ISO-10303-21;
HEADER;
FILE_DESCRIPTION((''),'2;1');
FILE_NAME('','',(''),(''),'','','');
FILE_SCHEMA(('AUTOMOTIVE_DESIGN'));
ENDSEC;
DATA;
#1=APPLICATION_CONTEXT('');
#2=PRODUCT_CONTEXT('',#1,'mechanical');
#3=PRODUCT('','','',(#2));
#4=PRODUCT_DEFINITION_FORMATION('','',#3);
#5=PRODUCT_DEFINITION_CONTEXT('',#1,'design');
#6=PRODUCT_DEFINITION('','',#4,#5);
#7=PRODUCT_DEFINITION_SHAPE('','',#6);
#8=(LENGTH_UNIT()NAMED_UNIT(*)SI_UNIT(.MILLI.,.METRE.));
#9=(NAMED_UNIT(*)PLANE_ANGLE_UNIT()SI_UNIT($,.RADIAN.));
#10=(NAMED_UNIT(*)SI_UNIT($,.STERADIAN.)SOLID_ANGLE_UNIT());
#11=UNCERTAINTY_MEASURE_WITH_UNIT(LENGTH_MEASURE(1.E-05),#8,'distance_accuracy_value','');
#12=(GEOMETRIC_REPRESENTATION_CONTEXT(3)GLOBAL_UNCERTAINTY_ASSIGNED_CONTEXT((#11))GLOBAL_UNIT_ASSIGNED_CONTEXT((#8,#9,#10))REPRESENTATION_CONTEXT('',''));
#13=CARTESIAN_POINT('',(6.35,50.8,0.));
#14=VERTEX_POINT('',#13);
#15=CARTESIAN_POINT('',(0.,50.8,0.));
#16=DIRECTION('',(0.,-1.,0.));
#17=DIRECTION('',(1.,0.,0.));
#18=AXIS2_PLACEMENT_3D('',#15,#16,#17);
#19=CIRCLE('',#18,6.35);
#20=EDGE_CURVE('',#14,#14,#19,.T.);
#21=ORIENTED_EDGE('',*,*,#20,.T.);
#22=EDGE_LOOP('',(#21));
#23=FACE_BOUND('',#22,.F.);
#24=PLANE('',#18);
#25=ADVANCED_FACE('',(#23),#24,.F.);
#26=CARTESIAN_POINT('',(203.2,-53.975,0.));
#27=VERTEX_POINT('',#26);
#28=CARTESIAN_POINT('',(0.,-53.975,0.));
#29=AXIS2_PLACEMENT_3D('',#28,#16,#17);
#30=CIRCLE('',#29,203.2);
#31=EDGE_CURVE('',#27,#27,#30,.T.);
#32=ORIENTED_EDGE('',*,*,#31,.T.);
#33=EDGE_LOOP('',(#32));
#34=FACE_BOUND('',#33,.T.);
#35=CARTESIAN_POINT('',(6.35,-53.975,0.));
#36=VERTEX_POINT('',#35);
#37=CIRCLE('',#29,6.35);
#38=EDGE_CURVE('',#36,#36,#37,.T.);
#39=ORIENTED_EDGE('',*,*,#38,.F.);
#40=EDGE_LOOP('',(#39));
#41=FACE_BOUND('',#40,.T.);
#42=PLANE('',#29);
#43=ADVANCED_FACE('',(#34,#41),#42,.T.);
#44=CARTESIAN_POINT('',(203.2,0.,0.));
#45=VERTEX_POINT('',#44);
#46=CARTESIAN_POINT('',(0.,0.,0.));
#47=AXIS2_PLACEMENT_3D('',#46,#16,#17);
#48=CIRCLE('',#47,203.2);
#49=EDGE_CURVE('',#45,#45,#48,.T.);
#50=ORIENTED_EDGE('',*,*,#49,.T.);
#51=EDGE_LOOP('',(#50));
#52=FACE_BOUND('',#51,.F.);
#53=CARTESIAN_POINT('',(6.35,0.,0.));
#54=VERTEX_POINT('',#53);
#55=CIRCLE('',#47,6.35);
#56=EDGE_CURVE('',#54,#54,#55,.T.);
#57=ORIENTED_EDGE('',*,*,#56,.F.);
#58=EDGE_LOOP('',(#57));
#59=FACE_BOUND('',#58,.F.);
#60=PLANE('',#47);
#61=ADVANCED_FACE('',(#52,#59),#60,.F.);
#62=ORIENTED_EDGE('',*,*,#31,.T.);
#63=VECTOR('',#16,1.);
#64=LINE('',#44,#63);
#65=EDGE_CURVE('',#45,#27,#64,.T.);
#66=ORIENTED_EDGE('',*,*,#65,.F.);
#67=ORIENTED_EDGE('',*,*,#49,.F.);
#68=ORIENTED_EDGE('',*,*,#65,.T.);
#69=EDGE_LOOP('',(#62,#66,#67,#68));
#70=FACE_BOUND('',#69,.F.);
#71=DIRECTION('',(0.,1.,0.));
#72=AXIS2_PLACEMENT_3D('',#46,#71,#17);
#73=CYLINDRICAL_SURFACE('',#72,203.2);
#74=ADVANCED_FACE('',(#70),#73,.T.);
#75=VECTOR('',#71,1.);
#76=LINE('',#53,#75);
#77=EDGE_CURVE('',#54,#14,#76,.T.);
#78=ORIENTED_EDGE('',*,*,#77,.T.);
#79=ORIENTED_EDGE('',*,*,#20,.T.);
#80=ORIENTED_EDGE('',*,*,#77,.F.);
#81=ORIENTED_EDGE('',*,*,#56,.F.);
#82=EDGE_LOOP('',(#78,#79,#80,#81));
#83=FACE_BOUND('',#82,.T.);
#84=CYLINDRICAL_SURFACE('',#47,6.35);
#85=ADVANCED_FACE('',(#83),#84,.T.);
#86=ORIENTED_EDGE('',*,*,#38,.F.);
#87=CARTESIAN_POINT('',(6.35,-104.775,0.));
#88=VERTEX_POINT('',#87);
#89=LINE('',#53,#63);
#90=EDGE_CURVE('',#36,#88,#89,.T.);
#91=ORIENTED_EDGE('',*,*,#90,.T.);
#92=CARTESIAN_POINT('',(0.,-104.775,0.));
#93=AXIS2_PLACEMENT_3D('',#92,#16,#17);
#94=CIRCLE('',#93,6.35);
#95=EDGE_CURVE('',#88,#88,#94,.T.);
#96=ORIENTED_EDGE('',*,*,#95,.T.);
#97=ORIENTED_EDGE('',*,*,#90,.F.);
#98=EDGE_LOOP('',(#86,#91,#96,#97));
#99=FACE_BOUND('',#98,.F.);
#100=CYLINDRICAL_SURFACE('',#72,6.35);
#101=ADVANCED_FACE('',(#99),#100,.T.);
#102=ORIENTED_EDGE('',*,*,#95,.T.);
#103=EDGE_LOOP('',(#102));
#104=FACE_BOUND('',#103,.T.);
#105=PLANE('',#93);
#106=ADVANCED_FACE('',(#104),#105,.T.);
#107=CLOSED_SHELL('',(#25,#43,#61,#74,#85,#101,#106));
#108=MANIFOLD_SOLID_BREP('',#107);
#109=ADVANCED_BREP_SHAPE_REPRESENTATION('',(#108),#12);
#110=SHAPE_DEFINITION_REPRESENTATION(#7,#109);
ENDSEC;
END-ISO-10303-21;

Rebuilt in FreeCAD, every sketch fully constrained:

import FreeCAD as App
import Part
import Sketcher

V = App.Vector
Q = App.Units.Quantity

doc = App.newDocument("Part")
body = doc.addObject("PartDesign::Body", "Body")

# Sketch on XZ plane
sketch1 = body.newObject("Sketcher::SketchObject", "Sketch")
sketch1.AttachmentSupport = (doc.getObject("XZ_Plane"), [""])
sketch1.MapMode = "FlatFace"
sketch1.addGeometry([
    Part.Circle(V(0, 0, 0), V(0, 0, 1), 203),
    Part.Circle(V(0, 0, 0), V(0, 0, 1), 6),
], False)
sketch1.addConstraint([
    Sketcher.Constraint("Coincident", 0, 3, -1, 1),
    Sketcher.Constraint("Coincident", 1, 3, -1, 1),
    Sketcher.Constraint("Diameter", 0, Q("16 in")),
    Sketcher.Constraint("Diameter", 1, Q("0.5 in")),
])
pad1 = body.newObject("PartDesign::Pad", "Pad")
pad1.Profile = sketch1
pad1.Length = Q("2.125 in")

# Sketch on XZ plane
sketch2 = body.newObject("Sketcher::SketchObject", "Sketch001")
sketch2.AttachmentSupport = (doc.getObject("XZ_Plane"), [""])
sketch2.MapMode = "FlatFace"
sketch2.addGeometry(Part.Circle(V(0, 0, 0), V(0, 0, 1), 6), False)
sketch2.addConstraint([
    Sketcher.Constraint("Coincident", 0, 3, -1, 1),
    Sketcher.Constraint("Diameter", 0, Q("0.5 in")),
])
pad2 = body.newObject("PartDesign::Pad", "Pad001")
pad2.Profile = sketch2
pad2.Type = "TwoLengths"
pad2.Length = Q("4.125 in")
pad2.Length2 = Q("2 in")

doc.recompute()
